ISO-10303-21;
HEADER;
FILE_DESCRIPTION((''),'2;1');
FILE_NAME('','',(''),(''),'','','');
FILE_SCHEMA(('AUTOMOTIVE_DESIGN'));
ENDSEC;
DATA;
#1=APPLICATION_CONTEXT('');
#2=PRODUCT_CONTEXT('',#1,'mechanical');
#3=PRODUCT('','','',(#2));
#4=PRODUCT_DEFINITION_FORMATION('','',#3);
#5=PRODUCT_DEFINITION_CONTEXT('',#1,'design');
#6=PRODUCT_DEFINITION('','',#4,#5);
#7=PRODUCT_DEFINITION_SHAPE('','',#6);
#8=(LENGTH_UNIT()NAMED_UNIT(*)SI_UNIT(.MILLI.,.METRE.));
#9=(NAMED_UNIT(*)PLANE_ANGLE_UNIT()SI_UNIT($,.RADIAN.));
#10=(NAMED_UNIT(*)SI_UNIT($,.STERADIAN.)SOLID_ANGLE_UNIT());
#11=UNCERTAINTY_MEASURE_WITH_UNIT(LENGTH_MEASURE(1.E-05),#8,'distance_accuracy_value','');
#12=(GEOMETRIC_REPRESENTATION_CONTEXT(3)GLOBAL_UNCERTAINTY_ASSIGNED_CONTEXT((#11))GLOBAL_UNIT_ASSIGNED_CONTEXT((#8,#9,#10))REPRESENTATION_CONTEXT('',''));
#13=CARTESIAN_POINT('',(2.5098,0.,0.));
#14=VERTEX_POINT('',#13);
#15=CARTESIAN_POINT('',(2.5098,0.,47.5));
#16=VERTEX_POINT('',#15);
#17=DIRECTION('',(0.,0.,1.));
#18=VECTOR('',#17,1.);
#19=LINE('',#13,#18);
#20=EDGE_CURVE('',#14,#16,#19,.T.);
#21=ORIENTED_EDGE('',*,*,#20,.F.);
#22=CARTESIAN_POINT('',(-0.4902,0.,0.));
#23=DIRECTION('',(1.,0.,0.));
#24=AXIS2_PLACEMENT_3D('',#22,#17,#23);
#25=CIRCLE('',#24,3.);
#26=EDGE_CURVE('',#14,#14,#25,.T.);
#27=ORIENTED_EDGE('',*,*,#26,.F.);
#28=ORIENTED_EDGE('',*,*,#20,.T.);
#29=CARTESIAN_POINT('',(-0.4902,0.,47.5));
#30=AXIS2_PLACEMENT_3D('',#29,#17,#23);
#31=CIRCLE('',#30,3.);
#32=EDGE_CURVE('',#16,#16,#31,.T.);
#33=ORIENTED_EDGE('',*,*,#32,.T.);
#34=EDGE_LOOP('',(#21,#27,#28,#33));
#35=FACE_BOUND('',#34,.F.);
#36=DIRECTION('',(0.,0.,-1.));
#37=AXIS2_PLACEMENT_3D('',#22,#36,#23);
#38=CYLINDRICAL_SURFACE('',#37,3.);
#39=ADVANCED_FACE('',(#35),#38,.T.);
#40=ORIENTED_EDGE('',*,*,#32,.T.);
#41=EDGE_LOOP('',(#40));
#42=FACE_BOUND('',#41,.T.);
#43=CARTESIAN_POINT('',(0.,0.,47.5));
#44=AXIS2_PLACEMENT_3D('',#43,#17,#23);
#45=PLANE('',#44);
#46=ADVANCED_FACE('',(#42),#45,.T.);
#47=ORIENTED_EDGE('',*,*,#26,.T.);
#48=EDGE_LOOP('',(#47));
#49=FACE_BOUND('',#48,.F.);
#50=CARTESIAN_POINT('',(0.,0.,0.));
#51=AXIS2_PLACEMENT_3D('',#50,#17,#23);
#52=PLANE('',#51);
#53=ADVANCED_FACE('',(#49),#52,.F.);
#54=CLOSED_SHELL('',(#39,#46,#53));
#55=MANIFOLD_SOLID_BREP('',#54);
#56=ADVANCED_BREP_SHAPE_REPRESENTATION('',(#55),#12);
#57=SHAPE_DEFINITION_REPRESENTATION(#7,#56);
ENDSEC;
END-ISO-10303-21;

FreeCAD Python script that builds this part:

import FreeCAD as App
import Part
import Sketcher

V = App.Vector
Q = App.Units.Quantity

doc = App.newDocument("Part")
body = doc.addObject("PartDesign::Body", "Body")

sketch1 = body.newObject("Sketcher::SketchObject", "Sketch")
sketch1.AttachmentSupport = (doc.getObject("XY_Plane"), [""])
sketch1.MapMode = "FlatFace"
sketch1.addGeometry(Part.Circle(V(-0.5, 0, 0), V(0, 0, 1), 3), False)
sketch1.addConstraint([
    Sketcher.Constraint("PointOnObject", 0, 3, -1),
    Sketcher.Constraint("Diameter", 0, Q("6 mm")),
    Sketcher.Constraint("DistanceX", 0, 3, -1, 1, Q("0.4902 mm")),
])
pad1 = body.newObject("PartDesign::Pad", "Pad")
pad1.Profile = sketch1
pad1.Length = 47.5

doc.recompute()
